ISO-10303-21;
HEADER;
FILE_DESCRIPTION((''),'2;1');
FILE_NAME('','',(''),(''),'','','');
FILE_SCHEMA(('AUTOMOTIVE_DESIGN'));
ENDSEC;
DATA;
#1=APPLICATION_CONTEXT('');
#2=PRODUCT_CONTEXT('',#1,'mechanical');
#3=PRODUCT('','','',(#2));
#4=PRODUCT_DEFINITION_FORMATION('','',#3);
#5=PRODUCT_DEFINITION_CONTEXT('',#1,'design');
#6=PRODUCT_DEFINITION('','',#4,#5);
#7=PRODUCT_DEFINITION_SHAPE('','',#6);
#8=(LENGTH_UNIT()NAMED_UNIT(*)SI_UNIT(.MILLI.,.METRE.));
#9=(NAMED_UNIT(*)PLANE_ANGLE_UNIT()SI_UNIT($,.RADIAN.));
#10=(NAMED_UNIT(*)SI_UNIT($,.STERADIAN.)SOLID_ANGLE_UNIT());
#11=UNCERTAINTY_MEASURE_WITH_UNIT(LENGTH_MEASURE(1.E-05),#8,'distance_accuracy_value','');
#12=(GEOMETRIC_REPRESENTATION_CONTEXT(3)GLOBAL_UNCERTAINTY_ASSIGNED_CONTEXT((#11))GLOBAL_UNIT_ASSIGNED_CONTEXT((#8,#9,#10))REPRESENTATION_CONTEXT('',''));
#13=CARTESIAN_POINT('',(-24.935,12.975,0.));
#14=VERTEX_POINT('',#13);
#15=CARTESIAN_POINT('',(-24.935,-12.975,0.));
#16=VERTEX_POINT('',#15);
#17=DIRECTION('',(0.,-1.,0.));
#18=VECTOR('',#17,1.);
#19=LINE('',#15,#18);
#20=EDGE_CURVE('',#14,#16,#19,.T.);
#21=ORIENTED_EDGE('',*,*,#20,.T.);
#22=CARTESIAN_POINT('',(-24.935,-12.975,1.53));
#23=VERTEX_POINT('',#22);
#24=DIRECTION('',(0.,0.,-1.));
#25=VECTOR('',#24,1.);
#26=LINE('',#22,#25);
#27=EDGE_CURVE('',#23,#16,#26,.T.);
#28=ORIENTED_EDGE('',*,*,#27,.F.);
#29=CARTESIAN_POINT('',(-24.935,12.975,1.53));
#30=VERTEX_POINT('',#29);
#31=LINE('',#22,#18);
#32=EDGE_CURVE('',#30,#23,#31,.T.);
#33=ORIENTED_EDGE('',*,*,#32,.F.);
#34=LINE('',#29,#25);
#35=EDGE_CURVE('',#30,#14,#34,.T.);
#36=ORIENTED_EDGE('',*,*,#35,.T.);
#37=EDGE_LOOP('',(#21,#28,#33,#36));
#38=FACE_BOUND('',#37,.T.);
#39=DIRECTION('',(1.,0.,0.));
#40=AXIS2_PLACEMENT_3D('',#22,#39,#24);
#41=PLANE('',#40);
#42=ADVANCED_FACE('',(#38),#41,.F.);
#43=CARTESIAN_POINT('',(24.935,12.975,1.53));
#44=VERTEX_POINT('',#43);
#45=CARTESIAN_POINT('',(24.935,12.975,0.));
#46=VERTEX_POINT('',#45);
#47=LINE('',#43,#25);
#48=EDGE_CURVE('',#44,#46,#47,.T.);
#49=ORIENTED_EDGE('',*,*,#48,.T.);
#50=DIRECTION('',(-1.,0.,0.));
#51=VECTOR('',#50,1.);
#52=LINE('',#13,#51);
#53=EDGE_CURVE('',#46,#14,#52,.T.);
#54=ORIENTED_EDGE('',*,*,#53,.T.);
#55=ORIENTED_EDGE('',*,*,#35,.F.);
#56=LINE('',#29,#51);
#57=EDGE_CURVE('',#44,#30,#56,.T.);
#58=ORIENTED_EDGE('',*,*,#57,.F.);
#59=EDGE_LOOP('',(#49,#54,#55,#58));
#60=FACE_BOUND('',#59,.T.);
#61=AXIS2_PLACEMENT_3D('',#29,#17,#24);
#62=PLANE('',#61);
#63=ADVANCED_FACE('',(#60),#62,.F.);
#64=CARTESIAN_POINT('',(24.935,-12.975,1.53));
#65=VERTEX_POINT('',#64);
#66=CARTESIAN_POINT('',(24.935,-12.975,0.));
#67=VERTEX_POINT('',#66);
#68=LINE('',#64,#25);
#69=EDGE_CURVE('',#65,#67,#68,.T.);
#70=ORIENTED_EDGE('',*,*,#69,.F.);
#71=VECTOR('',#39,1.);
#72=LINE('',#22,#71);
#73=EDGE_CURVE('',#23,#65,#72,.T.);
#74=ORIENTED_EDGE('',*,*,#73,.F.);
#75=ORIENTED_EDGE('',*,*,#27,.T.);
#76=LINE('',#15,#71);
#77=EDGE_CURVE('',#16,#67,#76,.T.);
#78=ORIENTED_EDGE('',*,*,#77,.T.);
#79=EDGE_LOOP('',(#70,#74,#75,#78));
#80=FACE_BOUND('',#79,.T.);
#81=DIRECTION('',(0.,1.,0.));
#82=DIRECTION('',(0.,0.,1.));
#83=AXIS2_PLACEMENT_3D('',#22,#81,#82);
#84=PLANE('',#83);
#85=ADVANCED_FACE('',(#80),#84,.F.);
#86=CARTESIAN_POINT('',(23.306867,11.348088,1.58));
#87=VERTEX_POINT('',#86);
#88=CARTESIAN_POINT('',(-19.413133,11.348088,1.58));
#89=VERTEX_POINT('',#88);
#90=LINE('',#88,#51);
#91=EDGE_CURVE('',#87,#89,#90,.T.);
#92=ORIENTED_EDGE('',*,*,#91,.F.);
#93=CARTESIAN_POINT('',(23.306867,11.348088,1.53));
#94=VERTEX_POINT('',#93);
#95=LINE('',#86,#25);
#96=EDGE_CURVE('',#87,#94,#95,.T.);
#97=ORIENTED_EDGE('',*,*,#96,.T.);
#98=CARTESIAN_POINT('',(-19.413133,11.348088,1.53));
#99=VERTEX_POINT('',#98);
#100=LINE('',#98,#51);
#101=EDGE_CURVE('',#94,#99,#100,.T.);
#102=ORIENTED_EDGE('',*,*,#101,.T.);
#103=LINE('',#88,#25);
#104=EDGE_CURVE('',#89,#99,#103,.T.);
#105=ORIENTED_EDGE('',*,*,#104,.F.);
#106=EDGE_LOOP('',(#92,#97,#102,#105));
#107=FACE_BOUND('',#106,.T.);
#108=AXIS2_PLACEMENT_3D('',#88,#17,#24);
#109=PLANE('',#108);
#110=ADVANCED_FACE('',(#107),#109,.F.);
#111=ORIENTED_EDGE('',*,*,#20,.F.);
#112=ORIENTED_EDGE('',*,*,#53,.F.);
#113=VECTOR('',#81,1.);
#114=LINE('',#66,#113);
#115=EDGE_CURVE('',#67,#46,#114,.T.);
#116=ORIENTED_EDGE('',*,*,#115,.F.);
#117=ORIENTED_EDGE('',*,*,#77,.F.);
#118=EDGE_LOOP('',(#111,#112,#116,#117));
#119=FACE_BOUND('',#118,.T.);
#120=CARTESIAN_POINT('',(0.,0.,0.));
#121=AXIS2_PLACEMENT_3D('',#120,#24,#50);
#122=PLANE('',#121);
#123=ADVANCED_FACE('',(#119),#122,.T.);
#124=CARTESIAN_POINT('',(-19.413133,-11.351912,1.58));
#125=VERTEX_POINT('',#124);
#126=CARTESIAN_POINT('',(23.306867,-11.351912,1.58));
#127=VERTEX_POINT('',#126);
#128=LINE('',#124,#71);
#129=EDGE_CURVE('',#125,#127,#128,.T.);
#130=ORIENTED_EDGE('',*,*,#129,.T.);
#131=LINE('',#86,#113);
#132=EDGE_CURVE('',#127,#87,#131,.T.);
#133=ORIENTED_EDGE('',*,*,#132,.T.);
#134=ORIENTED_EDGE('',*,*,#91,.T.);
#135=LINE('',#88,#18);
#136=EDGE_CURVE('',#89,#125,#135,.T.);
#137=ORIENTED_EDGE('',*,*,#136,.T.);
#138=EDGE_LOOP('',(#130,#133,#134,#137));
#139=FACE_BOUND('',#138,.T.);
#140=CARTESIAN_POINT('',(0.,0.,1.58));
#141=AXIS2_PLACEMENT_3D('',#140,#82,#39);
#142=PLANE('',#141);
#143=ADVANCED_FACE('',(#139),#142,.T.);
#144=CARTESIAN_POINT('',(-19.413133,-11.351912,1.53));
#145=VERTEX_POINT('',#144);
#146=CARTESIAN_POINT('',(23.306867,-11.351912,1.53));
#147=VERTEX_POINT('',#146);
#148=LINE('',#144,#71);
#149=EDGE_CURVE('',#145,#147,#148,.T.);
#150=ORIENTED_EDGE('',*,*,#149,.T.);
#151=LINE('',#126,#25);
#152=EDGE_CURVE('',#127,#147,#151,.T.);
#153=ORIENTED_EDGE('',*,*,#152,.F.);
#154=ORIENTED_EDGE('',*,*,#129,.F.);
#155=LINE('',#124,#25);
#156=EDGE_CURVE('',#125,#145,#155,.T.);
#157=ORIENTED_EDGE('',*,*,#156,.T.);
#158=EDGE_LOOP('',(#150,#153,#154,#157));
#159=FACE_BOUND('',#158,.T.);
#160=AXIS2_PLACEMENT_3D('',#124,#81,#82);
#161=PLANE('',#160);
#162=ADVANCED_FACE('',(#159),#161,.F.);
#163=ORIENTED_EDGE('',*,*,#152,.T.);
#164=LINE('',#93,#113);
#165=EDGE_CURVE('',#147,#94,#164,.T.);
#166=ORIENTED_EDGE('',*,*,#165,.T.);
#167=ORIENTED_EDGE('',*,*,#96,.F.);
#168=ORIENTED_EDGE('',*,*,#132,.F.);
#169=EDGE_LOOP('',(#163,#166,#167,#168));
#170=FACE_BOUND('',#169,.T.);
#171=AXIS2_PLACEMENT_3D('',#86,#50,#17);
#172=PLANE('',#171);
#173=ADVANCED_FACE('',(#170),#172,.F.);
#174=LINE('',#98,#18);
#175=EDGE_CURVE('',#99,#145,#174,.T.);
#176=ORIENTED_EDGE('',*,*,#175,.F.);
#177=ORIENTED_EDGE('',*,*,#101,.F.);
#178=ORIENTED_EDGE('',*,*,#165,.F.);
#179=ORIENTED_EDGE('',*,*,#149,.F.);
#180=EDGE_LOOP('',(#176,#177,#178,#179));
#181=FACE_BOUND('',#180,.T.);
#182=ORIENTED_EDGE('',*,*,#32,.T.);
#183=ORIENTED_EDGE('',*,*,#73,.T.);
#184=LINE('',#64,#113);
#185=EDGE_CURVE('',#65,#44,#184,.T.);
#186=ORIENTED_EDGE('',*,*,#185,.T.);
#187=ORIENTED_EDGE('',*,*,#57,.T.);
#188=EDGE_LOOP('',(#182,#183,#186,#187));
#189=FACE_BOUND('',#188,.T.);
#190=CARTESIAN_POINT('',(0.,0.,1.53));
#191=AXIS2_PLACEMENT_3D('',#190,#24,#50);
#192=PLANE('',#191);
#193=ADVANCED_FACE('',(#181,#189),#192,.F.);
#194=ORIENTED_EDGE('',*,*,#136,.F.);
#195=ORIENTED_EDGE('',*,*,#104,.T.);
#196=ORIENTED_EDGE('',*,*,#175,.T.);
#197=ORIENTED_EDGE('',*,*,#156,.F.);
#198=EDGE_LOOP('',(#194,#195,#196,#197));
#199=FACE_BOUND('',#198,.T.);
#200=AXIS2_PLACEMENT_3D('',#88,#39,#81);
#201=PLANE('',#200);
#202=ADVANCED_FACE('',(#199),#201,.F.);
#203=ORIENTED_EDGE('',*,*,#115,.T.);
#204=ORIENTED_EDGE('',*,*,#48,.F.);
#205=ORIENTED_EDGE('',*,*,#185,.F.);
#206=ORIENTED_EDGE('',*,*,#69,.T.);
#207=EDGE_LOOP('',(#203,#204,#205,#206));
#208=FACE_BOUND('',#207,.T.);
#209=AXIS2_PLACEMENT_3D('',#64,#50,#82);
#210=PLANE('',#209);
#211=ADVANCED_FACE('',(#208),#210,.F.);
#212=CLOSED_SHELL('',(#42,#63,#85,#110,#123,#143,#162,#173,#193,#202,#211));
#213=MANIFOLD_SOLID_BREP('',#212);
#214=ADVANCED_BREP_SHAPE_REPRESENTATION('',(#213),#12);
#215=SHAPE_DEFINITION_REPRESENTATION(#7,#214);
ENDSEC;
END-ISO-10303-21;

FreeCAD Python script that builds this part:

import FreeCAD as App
import Part
import Sketcher

V = App.Vector
Q = App.Units.Quantity

doc = App.newDocument("Part")
params = doc.addObject("Spreadsheet::Sheet", "Params")
for row, (alias, value) in enumerate([
    ("sketch1_width", "49.87 mm"),
    ("sketch1_height", "25.95 mm"),
    ("pad1_length", "1.53 mm"),
    ("sketch2_height", "22.7 mm"),
    ("sketch2_width", "42.72 mm"),
    ("pad2_length", "0.05 mm"),
], start=1):
    params.set(f"A{row}", alias)
    params.set(f"B{row}", "=" + value)
    params.setAlias(f"B{row}", alias)

body = doc.addObject("PartDesign::Body", "Body")

sketch1 = body.newObject("Sketcher::SketchObject", "Sketch")
sketch1.AttachmentSupport = (doc.getObject("XY_Plane"), [""])
sketch1.MapMode = "FlatFace"
sketch1.addGeometry([
    Part.LineSegment(V(-25, 13, 0), V(-25, -13, 0)),
    Part.LineSegment(V(-25, -13, 0), V(25, -13, 0)),
    Part.LineSegment(V(25, -13, 0), V(25, 13, 0)),
    Part.LineSegment(V(25, 13, 0), V(-25, 13, 0)),
], False)
sketch1.addConstraint([
    Sketcher.Constraint("Coincident", 0, 2, 1, 1),
    Sketcher.Constraint("Coincident", 1, 2, 2, 1),
    Sketcher.Constraint("Coincident", 2, 2, 3, 1),
    Sketcher.Constraint("Coincident", 3, 2, 0, 1),
    Sketcher.Constraint("Vertical", 0),
    Sketcher.Constraint("Horizontal", 1),
    Sketcher.Constraint("Vertical", 2),
    Sketcher.Constraint("Horizontal", 3),
    Sketcher.Constraint("Symmetric", 0, 2, 2, 2, -1, 1),
    Sketcher.Constraint("DistanceX", 1, 1, 1, 2, Q("49.87 mm")),
    Sketcher.Constraint("DistanceY", 0, 2, 0, 1, Q("25.95 mm")),
])
sketch1.setExpression("Constraints[9]", "Params.sketch1_width")
sketch1.setExpression("Constraints[10]", "Params.sketch1_height")
pad1 = body.newObject("PartDesign::Pad", "Pad")
pad1.Profile = sketch1
pad1.setExpression("Length", "Params.pad1_length")

sketch2 = body.newObject("Sketcher::SketchObject", "Sketch001")
sketch2.AttachmentSupport = (doc.getObject("XY_Plane"), [""])
sketch2.MapMode = "FlatFace"
sketch2.AttachmentOffset = App.Placement(V(0, 0, 1.53), App.Rotation())
sketch2.addGeometry([
    Part.LineSegment(V(-19, 11, 0), V(-19, -11, 0)),
    Part.LineSegment(V(-19, -11, 0), V(23, -11, 0)),
    Part.LineSegment(V(23, -11, 0), V(23, 11, 0)),
    Part.LineSegment(V(23, 11, 0), V(-19, 11, 0)),
], False)
sketch2.addConstraint([
    Sketcher.Constraint("Coincident", 0, 2, 1, 1),
    Sketcher.Constraint("Coincident", 1, 2, 2, 1),
    Sketcher.Constraint("Coincident", 2, 2, 3, 1),
    Sketcher.Constraint("Coincident", 3, 2, 0, 1),
    Sketcher.Constraint("Vertical", 0),
    Sketcher.Constraint("Horizontal", 1),
    Sketcher.Constraint("Vertical", 2),
    Sketcher.Constraint("Horizontal", 3),
    Sketcher.Constraint("DistanceY", 0, 2, 0, 1, Q("22.7 mm")),
    Sketcher.Constraint("DistanceX", 1, 1, 1, 2, Q("42.72 mm")),
    Sketcher.Constraint("DistanceX", 0, 2, -1, 1, Q("19.413133 mm")),
    Sketcher.Constraint("DistanceY", 0, 2, -1, 1, Q("11.351912 mm")),
])
sketch2.setExpression("Constraints[8]", "Params.sketch2_height")
sketch2.setExpression("Constraints[9]", "Params.sketch2_width")
pad2 = body.newObject("PartDesign::Pad", "Pad001")
pad2.Profile = sketch2
pad2.setExpression("Length", "Params.pad2_length")

doc.recompute()
